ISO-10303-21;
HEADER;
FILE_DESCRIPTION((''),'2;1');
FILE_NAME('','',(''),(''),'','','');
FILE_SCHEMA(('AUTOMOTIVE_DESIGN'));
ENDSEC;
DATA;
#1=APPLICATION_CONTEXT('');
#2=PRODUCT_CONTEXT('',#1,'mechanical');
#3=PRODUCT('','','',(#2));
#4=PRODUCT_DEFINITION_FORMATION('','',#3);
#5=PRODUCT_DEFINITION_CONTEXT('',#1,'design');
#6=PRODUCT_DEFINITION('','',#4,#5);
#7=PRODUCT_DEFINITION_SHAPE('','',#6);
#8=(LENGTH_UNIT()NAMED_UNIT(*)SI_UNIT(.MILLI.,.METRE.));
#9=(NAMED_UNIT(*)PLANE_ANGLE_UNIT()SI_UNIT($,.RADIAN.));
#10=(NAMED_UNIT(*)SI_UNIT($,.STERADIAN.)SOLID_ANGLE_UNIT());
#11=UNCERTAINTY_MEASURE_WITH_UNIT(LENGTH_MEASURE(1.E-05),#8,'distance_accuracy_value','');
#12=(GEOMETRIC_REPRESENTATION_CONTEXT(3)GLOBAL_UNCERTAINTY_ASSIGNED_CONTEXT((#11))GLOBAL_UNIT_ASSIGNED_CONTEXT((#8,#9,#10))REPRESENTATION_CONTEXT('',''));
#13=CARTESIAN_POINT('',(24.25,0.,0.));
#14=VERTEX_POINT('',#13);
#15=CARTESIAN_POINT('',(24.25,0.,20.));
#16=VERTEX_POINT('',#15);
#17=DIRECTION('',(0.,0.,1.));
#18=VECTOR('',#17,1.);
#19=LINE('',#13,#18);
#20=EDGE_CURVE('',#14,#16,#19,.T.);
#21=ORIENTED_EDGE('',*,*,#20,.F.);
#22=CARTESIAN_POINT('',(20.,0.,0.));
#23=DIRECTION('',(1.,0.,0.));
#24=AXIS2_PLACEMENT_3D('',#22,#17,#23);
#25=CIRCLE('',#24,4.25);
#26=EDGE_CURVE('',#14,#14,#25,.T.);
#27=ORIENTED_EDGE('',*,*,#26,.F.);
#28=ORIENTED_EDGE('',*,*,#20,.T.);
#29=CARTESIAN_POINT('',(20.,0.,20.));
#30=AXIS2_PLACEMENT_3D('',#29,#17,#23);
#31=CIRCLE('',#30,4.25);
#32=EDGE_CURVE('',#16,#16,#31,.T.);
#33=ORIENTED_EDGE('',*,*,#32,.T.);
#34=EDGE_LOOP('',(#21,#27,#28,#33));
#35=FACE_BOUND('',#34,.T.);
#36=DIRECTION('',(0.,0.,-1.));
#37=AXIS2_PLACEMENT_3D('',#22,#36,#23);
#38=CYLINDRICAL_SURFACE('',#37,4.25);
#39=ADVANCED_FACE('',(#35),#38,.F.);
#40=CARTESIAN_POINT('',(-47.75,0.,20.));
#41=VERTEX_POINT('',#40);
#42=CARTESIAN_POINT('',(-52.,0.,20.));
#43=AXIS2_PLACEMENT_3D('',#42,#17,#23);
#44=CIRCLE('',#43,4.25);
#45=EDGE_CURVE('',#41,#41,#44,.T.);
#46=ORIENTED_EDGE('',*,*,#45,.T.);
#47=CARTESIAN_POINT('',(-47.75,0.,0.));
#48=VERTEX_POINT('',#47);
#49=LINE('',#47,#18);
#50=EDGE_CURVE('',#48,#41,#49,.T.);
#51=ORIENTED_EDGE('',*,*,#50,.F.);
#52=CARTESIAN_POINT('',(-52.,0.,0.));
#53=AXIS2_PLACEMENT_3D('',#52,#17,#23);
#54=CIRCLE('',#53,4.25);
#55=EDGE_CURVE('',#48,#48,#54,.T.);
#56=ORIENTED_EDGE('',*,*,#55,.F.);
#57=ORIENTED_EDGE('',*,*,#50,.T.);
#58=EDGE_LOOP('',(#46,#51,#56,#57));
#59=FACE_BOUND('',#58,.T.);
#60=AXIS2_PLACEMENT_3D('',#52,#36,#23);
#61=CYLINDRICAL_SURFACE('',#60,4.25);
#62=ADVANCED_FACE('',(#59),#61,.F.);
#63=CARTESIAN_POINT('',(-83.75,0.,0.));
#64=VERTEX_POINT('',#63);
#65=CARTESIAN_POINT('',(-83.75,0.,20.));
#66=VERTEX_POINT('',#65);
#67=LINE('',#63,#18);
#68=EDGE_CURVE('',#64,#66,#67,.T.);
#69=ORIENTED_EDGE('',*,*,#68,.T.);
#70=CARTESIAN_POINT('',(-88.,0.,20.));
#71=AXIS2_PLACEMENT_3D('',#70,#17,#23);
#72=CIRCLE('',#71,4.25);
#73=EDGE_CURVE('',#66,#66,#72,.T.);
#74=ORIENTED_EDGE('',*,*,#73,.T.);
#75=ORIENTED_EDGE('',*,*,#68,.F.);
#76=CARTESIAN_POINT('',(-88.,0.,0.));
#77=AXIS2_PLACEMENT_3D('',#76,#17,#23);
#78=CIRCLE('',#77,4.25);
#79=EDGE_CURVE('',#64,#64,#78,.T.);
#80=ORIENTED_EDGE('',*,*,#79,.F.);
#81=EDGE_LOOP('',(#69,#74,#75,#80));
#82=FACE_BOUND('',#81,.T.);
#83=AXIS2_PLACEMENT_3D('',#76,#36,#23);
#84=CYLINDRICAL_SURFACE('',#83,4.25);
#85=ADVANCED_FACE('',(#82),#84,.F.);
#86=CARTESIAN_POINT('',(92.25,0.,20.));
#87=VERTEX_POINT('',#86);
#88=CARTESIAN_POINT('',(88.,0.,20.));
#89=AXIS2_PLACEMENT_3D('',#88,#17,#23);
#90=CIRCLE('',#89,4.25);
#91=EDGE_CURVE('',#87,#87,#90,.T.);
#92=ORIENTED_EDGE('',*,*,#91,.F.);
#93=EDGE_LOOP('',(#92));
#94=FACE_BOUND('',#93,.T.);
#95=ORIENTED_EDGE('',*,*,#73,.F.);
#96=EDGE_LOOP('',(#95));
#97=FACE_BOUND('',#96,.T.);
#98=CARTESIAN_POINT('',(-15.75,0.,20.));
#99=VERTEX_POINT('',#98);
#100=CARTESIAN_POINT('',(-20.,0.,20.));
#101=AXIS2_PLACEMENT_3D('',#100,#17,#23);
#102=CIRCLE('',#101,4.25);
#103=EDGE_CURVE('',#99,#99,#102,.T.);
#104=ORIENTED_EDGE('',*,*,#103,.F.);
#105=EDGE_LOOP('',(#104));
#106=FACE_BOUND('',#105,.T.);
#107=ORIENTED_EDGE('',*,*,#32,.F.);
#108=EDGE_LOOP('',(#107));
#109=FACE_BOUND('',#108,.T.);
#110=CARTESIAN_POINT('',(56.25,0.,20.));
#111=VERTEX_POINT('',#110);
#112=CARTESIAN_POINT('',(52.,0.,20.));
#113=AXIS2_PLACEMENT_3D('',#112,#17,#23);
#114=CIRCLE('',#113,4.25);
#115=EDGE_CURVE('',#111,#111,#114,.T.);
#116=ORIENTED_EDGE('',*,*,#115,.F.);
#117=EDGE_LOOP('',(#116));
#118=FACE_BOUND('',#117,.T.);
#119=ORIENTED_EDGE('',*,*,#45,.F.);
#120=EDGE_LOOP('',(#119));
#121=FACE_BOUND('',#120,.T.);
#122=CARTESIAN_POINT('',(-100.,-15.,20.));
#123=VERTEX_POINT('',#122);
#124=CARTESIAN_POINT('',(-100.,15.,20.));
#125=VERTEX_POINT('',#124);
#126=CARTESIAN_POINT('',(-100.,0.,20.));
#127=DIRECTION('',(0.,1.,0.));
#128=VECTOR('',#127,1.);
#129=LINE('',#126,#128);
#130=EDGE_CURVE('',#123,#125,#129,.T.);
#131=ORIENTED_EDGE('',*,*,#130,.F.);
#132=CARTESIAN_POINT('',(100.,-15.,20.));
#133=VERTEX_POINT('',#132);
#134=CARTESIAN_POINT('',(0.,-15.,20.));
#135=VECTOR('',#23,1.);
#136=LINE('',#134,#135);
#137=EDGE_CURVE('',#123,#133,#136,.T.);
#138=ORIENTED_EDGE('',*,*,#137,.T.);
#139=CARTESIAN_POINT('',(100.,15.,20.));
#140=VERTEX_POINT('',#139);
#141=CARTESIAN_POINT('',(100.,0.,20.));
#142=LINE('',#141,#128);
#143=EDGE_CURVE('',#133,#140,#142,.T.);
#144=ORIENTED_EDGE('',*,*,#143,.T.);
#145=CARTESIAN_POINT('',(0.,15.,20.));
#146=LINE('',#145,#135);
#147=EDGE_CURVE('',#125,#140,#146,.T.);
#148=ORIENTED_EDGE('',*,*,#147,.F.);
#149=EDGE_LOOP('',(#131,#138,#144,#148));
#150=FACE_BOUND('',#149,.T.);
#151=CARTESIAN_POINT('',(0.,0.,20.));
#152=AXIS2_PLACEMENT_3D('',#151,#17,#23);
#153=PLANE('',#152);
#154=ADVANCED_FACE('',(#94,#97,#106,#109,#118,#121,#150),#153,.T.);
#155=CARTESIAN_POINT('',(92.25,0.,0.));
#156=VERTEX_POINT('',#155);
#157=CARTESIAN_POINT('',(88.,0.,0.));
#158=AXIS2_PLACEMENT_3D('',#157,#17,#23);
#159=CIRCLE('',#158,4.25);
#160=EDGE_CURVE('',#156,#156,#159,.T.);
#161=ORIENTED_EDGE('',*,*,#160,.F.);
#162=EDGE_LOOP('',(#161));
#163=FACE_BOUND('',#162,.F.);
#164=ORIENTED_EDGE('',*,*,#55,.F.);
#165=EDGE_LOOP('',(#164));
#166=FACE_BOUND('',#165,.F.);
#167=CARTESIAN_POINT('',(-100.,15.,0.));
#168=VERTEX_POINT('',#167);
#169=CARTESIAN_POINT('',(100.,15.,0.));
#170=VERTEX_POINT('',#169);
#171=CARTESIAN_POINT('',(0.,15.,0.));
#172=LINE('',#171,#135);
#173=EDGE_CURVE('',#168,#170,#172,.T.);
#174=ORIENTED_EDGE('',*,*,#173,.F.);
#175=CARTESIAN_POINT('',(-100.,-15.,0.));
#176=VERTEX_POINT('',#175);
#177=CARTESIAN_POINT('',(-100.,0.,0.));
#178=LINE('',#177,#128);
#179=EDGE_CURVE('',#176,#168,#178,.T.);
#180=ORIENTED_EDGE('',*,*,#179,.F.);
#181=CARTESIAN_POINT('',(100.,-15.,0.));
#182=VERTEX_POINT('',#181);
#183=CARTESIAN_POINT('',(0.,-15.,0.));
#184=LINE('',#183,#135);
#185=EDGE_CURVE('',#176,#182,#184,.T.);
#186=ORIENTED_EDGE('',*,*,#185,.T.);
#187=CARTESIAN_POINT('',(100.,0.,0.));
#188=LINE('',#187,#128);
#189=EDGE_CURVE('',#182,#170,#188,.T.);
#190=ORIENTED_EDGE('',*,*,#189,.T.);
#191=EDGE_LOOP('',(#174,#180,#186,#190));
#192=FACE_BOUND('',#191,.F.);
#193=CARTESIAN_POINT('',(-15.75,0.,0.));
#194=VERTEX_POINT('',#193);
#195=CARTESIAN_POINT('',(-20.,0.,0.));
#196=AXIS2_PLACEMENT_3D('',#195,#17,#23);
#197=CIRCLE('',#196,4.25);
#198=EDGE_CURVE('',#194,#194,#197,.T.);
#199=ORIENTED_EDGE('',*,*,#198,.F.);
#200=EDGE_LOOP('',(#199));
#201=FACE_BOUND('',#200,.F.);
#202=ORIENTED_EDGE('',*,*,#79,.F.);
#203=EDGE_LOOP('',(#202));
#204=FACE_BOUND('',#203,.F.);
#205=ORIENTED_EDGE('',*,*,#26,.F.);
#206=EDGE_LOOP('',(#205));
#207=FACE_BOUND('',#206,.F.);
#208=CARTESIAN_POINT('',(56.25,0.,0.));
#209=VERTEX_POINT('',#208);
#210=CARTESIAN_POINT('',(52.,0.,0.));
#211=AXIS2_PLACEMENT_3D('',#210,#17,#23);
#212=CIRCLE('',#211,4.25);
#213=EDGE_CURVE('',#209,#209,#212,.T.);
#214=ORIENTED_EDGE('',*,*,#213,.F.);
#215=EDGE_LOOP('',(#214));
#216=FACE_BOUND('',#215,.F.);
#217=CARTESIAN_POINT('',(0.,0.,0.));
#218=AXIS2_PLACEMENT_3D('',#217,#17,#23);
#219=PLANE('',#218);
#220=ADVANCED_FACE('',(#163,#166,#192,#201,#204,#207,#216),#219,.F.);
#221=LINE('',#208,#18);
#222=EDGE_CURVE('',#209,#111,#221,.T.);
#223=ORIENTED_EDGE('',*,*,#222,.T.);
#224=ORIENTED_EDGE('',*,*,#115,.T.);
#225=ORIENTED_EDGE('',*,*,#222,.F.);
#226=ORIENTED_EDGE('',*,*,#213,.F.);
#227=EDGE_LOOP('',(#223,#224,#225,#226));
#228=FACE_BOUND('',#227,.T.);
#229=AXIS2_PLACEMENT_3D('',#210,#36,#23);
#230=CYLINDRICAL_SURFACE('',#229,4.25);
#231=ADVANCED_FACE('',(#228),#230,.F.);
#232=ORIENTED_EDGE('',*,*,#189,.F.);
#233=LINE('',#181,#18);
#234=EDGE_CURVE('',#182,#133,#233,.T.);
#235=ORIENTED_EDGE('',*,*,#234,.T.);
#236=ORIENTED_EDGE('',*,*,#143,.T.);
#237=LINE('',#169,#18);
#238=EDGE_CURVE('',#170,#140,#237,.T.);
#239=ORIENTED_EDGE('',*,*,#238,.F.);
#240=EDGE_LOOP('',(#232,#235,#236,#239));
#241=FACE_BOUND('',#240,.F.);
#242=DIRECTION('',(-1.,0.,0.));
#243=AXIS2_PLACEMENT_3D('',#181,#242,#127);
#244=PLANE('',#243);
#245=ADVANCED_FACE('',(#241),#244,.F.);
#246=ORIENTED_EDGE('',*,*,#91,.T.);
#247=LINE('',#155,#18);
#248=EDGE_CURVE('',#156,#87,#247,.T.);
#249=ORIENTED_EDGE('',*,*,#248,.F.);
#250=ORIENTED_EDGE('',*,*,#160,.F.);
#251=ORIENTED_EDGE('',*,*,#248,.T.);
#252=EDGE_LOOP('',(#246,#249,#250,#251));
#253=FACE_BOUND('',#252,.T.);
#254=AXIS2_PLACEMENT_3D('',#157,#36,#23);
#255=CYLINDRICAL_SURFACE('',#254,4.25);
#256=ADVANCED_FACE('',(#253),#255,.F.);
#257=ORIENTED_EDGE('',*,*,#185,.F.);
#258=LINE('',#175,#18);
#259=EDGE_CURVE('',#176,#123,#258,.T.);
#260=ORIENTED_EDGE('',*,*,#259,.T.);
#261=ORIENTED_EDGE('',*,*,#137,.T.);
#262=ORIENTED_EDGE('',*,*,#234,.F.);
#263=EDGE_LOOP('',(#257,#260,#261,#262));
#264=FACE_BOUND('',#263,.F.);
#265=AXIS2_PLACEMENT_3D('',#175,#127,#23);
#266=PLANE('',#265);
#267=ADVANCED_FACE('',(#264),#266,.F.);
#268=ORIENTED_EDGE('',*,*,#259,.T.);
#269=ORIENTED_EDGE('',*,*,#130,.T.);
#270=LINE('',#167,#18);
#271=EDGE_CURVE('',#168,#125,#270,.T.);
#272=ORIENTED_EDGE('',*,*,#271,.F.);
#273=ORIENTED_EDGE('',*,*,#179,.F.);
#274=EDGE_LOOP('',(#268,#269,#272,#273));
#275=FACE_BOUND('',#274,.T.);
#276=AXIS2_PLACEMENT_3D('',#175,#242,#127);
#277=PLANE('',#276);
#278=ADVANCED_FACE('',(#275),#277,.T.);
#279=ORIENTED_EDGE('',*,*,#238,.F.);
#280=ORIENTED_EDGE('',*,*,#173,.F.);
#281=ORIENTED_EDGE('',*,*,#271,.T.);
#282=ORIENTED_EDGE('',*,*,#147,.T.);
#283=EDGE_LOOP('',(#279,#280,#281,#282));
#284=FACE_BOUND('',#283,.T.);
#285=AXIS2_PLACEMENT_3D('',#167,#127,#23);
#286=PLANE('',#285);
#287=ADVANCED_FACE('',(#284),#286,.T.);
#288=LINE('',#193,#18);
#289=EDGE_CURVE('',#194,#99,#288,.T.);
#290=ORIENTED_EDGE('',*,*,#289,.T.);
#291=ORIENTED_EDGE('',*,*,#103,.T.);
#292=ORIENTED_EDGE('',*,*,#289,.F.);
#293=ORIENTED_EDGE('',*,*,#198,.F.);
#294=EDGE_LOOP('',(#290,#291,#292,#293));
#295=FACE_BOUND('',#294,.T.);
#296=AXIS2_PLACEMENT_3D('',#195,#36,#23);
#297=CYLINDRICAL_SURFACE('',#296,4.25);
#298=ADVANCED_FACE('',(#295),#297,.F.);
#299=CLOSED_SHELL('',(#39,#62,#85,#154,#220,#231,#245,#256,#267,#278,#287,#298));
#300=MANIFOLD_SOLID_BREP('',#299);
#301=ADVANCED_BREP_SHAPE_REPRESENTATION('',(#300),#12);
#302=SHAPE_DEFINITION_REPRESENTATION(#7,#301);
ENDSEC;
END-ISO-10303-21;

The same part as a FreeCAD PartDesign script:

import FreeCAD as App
import Part
import Sketcher
from FreeCAD import Vector
Q = App.Units.Quantity


def add_polygon(sketch, points):
    """Adds a closed chain of lines whose ends are joined by coincident constraints."""
    first, n = sketch.GeometryCount, len(points)
    for a, b in zip(points, points[1:] + points[:1]):
        sketch.addGeometry(Part.LineSegment(App.Vector(*a, 0), App.Vector(*b, 0)), False)
    for i in range(n):
        sketch.addConstraint(Sketcher.Constraint("Coincident", first + i, 2, first + (i + 1) % n, 1))

doc = App.newDocument("Part")
body = doc.addObject("PartDesign::Body", "Body")

sketch1 = body.newObject("Sketcher::SketchObject", "Sketch")
sketch1.AttachmentSupport = (doc.getObject("XY_Plane"), [""])
sketch1.MapMode = "FlatFace"
add_polygon(sketch1, [(-100, 15), (-100, -15), (100, -15), (100, 15)])
sketch1.addGeometry(Part.Circle(Vector(-88, 0, 0), Vector(0, 0, 1), 4.25), False)
sketch1.addGeometry(Part.Circle(Vector(-52, 0, 0), Vector(0, 0, 1), 4.25), False)
sketch1.addGeometry(Part.Circle(Vector(-20, 0, 0), Vector(0, 0, 1), 4.25), False)
sketch1.addGeometry(Part.Circle(Vector(20, 0, 0), Vector(0, 0, 1), 4.25), False)
sketch1.addGeometry(Part.Circle(Vector(52, 0, 0), Vector(0, 0, 1), 4.25), False)
sketch1.addGeometry(Part.Circle(Vector(88, 0, 0), Vector(0, 0, 1), 4.25), False)
sketch1.addConstraint([
    Sketcher.Constraint("Vertical", 0),
    Sketcher.Constraint("Horizontal", 1),
    Sketcher.Constraint("Vertical", 2),
    Sketcher.Constraint("Horizontal", 3),
    Sketcher.Constraint("Equal", 4, 5),
    Sketcher.Constraint("Equal", 5, 6),
    Sketcher.Constraint("Equal", 6, 7),
    Sketcher.Constraint("Equal", 7, 8),
    Sketcher.Constraint("Equal", 8, 9),
    Sketcher.Constraint("Symmetric", 6, 3, 7, 3, -1, 1),
    Sketcher.Constraint("Symmetric", 5, 3, 8, 3, -1, 1),
    Sketcher.Constraint("Symmetric", 4, 3, 9, 3, -1, 1),
    Sketcher.Constraint("Symmetric", 0, 2, 2, 2, -1, 1),
    Sketcher.Constraint("PointOnObject", 4, 3, -1),
    Sketcher.Constraint("PointOnObject", 5, 3, -1),
    Sketcher.Constraint("PointOnObject", 6, 3, -1),
    Sketcher.Constraint("Diameter", 4, Q("8.5 mm")),
    Sketcher.Constraint("DistanceX", 1, 1, 1, 2, Q("200 mm")),
    Sketcher.Constraint("DistanceY", 0, 2, 0, 1, Q("30 mm")),
    Sketcher.Constraint("DistanceX", 4, 3, -1, 1, Q("88 mm")),
    Sketcher.Constraint("DistanceX", 5, 3, -1, 1, Q("52 mm")),
    Sketcher.Constraint("DistanceX", 6, 3, -1, 1, Q("20 mm")),
])
pad1 = body.newObject("PartDesign::Pad", "Pad")
pad1.Profile = sketch1
pad1.Length = 20

doc.recompute()
